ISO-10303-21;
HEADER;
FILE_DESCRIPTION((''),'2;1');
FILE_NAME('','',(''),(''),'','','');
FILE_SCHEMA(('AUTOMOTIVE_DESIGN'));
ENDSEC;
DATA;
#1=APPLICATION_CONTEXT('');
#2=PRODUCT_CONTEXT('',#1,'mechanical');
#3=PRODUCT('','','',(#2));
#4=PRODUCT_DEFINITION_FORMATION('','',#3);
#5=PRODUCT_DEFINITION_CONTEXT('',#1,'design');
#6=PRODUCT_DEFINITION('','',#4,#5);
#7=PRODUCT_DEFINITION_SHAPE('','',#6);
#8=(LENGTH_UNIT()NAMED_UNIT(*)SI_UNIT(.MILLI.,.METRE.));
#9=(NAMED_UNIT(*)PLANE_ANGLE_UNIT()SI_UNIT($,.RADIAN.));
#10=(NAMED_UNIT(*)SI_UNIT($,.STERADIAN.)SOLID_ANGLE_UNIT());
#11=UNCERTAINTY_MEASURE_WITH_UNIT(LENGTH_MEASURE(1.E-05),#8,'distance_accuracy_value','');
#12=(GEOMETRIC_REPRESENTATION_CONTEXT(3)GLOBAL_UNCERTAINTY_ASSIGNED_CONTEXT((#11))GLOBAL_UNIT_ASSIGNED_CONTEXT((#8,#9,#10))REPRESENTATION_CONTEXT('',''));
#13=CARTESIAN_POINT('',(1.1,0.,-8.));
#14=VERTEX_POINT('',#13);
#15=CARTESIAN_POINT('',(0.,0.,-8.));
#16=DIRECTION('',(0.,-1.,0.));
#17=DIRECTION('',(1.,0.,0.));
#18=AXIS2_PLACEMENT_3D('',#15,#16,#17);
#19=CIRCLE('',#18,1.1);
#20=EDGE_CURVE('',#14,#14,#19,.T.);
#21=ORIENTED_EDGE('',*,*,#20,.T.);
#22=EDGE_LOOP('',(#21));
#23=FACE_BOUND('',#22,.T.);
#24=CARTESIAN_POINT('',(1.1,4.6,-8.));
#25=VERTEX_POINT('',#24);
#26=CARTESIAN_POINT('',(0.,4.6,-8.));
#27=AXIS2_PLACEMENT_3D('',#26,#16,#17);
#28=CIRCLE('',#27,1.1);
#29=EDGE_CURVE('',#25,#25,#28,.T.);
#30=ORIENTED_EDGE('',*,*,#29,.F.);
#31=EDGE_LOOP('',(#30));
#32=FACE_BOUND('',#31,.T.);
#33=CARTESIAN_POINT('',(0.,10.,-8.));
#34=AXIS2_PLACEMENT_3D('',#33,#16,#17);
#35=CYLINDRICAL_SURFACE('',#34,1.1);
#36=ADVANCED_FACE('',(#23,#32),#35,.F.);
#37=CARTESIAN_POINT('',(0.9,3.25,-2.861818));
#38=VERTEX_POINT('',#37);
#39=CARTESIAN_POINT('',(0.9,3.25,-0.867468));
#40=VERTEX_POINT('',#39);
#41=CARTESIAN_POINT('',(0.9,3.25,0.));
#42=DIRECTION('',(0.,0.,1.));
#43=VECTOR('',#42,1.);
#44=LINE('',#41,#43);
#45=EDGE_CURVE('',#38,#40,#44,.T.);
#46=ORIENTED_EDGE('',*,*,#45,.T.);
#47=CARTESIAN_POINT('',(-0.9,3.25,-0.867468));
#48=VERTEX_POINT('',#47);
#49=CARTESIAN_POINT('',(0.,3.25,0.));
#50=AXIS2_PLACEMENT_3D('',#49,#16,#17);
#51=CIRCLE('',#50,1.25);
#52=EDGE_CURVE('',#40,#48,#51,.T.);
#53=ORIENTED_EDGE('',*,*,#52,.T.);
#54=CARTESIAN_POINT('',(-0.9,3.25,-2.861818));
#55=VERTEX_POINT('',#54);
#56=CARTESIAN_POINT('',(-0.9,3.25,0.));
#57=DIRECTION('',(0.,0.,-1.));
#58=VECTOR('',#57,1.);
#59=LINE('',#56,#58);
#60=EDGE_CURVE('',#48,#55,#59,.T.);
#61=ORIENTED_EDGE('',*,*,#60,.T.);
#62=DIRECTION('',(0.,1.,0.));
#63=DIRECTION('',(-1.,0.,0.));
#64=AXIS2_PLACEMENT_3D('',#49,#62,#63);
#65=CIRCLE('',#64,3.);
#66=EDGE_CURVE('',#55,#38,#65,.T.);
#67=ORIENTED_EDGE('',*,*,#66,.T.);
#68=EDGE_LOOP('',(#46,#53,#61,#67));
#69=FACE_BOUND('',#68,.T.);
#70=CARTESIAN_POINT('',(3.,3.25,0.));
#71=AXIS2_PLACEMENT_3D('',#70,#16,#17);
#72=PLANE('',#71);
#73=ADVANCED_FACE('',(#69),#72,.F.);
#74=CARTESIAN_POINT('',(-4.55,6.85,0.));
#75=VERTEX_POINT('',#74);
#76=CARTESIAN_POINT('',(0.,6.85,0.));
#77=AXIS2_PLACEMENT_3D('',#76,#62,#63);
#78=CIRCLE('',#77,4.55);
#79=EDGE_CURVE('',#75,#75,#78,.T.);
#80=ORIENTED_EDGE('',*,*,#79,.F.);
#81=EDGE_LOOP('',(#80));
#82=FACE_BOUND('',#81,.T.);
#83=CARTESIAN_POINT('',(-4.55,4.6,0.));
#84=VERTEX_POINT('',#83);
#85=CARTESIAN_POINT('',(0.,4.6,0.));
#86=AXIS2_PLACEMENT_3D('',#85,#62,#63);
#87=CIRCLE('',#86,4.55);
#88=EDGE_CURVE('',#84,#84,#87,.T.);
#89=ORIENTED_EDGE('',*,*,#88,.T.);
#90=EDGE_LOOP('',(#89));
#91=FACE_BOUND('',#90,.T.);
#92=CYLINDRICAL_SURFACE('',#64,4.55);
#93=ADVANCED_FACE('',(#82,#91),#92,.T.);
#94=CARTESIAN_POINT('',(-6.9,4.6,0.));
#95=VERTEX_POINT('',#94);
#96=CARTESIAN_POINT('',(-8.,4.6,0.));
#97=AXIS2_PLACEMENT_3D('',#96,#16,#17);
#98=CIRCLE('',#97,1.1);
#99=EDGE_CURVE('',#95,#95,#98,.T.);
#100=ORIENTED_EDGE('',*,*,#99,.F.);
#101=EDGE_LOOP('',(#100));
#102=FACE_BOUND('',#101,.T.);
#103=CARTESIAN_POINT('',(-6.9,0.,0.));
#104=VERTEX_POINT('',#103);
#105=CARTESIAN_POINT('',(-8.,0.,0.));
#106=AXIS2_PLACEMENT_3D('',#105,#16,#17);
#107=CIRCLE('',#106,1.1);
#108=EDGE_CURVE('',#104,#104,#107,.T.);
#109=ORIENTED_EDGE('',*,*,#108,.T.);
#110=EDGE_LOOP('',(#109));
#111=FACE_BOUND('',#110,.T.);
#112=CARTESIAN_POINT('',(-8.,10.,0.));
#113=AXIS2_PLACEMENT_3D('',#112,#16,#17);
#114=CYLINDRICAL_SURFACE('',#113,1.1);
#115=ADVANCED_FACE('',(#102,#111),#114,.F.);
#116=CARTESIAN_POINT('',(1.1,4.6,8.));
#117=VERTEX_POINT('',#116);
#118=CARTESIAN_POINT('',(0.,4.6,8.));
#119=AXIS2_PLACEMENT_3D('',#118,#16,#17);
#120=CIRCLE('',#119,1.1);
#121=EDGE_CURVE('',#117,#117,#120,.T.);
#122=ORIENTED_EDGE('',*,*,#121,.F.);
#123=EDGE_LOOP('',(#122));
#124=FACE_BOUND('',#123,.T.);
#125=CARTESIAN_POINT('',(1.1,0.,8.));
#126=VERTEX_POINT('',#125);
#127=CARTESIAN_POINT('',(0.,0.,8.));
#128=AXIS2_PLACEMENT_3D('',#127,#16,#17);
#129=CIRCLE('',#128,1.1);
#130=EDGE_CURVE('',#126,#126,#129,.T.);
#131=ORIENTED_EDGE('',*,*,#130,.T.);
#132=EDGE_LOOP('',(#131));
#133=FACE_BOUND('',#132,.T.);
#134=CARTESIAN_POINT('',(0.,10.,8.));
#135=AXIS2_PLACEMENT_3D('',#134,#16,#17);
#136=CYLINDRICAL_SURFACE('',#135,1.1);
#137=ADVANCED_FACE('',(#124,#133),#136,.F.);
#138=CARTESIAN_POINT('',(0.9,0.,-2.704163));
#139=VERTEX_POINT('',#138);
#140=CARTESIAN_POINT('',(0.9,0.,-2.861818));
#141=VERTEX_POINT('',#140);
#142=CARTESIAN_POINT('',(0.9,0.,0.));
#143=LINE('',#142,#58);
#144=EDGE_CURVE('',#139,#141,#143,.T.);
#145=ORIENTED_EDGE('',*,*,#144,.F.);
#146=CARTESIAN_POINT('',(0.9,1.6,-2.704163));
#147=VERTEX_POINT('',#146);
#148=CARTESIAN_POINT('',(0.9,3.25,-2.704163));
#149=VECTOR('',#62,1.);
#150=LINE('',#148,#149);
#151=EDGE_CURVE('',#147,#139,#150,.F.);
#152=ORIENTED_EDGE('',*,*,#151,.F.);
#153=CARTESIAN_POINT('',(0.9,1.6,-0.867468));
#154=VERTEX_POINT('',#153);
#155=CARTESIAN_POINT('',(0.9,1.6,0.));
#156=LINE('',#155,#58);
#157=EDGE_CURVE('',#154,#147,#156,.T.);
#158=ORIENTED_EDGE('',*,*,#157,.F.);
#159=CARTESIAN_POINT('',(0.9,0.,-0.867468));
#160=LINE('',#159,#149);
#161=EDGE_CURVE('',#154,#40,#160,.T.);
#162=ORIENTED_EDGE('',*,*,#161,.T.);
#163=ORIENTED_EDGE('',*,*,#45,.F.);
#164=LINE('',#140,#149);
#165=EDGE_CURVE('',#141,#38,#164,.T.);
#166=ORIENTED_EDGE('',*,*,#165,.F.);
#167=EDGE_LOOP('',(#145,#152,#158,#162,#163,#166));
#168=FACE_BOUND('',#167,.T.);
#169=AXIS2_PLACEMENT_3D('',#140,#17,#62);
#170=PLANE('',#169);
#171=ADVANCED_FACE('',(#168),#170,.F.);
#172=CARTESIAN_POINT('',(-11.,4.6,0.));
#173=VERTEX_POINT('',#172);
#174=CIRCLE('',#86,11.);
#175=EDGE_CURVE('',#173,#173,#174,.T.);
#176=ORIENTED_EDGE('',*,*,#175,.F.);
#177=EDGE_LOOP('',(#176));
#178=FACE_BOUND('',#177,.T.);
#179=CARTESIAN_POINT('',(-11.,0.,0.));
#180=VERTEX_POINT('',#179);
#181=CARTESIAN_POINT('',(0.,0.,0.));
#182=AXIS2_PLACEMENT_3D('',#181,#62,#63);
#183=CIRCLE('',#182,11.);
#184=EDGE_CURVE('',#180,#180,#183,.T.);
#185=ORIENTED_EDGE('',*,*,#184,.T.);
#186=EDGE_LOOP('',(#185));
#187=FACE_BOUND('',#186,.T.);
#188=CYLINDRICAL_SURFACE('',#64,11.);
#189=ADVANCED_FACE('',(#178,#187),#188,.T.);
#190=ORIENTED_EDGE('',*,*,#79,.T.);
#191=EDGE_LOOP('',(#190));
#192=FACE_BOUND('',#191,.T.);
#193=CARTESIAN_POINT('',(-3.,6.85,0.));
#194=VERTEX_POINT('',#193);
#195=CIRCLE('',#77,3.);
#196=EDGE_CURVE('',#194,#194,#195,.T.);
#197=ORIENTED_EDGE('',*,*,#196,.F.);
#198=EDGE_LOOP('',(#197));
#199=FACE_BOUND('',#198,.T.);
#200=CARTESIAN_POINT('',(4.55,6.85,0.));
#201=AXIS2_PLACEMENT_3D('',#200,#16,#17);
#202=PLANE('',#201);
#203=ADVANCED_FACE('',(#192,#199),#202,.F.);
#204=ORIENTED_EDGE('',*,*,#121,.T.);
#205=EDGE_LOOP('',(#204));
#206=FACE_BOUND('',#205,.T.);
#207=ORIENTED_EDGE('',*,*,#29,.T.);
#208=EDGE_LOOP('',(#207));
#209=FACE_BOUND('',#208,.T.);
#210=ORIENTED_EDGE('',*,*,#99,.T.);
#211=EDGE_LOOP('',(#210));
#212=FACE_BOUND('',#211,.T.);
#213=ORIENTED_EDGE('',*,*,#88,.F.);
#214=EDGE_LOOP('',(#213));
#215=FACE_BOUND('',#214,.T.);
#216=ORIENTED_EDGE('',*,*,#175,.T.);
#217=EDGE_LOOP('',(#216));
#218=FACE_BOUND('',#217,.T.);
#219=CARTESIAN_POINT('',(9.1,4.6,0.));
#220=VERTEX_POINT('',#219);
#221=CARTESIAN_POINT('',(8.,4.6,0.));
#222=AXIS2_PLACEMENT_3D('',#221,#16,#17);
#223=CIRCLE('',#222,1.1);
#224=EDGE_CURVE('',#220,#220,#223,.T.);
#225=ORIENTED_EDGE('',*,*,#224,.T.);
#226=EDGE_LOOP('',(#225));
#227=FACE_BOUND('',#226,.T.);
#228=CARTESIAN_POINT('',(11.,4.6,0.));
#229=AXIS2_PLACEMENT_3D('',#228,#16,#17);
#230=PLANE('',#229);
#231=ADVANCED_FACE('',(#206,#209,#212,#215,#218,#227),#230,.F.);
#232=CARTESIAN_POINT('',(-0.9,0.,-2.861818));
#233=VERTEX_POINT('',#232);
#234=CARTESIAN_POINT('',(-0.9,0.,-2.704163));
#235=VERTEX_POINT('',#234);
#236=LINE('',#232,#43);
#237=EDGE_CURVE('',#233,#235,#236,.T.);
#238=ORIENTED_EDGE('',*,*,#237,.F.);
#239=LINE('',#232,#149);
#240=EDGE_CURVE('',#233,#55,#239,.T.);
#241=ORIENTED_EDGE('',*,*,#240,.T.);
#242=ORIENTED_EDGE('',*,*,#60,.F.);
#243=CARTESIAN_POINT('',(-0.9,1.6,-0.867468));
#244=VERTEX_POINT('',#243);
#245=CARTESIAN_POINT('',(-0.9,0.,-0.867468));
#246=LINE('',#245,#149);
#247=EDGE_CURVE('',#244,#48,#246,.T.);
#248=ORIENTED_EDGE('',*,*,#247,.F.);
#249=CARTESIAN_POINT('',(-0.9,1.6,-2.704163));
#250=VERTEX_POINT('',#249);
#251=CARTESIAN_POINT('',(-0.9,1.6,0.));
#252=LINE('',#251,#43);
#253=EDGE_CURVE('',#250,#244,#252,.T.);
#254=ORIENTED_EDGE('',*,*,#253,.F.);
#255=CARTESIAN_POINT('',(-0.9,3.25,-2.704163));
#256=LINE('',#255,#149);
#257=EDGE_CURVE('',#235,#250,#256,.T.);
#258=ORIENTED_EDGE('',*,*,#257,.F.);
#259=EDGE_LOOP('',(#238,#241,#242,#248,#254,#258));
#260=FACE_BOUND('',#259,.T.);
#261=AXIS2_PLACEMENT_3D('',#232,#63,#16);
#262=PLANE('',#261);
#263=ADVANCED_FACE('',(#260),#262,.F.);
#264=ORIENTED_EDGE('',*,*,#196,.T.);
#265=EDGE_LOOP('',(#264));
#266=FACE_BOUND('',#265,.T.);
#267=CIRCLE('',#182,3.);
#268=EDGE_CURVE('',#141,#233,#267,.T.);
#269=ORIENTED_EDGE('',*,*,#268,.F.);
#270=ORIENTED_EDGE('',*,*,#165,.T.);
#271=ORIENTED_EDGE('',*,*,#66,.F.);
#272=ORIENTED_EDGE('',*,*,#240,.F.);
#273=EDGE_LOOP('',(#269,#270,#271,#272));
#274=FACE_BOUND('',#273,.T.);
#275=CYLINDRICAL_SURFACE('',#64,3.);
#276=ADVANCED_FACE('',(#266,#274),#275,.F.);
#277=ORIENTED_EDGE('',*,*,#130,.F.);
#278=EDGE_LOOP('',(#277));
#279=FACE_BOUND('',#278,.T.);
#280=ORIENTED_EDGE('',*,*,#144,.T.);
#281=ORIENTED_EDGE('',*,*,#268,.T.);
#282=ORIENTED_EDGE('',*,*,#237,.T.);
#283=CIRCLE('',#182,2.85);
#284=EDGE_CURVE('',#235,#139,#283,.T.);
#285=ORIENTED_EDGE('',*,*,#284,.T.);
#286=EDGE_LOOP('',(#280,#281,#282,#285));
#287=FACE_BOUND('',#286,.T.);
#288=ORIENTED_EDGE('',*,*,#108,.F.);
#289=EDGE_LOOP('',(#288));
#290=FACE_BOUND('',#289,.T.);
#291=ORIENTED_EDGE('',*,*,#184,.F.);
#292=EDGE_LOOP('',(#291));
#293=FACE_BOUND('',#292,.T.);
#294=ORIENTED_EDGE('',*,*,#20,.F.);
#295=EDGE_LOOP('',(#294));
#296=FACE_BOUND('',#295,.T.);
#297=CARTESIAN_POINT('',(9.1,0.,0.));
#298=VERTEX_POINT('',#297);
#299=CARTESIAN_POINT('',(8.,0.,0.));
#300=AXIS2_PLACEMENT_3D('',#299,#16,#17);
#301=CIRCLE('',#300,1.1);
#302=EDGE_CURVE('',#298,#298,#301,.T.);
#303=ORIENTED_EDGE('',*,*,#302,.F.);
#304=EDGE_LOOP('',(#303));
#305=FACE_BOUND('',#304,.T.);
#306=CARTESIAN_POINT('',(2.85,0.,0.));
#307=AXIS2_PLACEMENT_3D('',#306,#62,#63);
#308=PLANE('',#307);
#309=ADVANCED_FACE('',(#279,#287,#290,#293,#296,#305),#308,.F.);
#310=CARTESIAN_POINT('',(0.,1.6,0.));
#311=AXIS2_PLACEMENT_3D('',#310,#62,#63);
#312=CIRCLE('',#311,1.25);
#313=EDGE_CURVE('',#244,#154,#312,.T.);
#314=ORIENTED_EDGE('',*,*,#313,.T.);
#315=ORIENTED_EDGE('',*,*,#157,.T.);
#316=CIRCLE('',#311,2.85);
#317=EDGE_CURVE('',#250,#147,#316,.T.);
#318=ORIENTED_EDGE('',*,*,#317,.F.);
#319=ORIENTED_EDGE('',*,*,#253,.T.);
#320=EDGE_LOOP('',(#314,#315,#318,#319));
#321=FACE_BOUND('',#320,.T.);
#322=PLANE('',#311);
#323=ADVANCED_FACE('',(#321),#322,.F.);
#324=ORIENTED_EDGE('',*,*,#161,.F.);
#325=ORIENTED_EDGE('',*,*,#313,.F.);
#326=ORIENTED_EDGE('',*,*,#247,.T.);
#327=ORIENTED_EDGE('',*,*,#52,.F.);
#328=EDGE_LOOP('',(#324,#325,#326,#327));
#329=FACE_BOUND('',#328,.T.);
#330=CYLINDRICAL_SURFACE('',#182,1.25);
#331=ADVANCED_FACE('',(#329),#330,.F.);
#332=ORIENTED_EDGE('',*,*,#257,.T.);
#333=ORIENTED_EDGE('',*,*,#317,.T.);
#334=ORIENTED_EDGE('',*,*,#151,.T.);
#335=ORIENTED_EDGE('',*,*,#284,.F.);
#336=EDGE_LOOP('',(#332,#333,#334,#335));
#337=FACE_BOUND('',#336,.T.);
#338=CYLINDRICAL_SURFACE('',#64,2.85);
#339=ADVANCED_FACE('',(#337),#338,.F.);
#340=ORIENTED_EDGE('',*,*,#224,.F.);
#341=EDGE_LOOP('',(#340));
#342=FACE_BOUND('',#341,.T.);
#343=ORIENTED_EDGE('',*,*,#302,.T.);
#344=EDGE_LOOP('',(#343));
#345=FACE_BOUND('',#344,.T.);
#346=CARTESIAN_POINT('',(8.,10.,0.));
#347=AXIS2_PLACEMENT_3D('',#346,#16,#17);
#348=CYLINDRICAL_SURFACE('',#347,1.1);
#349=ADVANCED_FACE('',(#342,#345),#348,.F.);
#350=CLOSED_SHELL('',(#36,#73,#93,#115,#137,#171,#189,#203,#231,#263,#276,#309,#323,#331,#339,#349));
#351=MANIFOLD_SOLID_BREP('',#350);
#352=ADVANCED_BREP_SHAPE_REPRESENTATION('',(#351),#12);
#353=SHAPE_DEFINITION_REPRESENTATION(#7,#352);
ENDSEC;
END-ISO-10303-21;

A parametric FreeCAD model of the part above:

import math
import FreeCAD as App
import Part
import Sketcher

V = App.Vector
Q = App.Units.Quantity

doc = App.newDocument("Part")
body = doc.addObject("PartDesign::Body", "Body")

# Sketch on XY plane
sketch1 = body.newObject("Sketcher::SketchObject", "Sketch")
sketch1.AttachmentSupport = (doc.getObject("XY_Plane"), [""])
sketch1.MapMode = "FlatFace"
sketch1.addGeometry(Part.LineSegment(V(2.9, 0, 0), V(11, 0, 0)), False)
sketch1.addGeometry(Part.LineSegment(V(11, 0, 0), V(11, 4.6, 0)), False)
sketch1.addGeometry(Part.LineSegment(V(11, 4.6, 0), V(4.5, 4.6, 0)), False)
sketch1.addGeometry(Part.LineSegment(V(4.5, 4.6, 0), V(4.5, 6.8, 0)), False)
sketch1.addGeometry(Part.LineSegment(V(4.5, 6.8, 0), V(3, 6.8, 0)), False)
sketch1.addGeometry(Part.LineSegment(V(3, 6.8, 0), V(3, 3.2, 0)), False)
sketch1.addGeometry(Part.LineSegment(V(3, 3.2, 0), V(0, 3.2, 0)), False)
sketch1.addGeometry(Part.LineSegment(V(0, 3.2, 0), V(0, 1.6, 0)), False)
sketch1.addGeometry(Part.LineSegment(V(0, 1.6, 0), V(2.9, 1.6, 0)), False)
sketch1.addGeometry(Part.LineSegment(V(2.9, 1.6, 0), V(2.9, 0, 0)), False)
sketch1.addConstraint(Sketcher.Constraint("Coincident", 0, 2, 1, 1))
sketch1.addConstraint(Sketcher.Constraint("Coincident", 1, 2, 2, 1))
sketch1.addConstraint(Sketcher.Constraint("Coincident", 2, 2, 3, 1))
sketch1.addConstraint(Sketcher.Constraint("Coincident", 3, 2, 4, 1))
sketch1.addConstraint(Sketcher.Constraint("Coincident", 4, 2, 5, 1))
sketch1.addConstraint(Sketcher.Constraint("Coincident", 5, 2, 6, 1))
sketch1.addConstraint(Sketcher.Constraint("Coincident", 6, 2, 7, 1))
sketch1.addConstraint(Sketcher.Constraint("Coincident", 7, 2, 8, 1))
sketch1.addConstraint(Sketcher.Constraint("Coincident", 8, 2, 9, 1))
sketch1.addConstraint(Sketcher.Constraint("Coincident", 9, 2, 0, 1))
sketch1.addConstraint(Sketcher.Constraint("Horizontal", 0))
sketch1.addConstraint(Sketcher.Constraint("Vertical", 1))
sketch1.addConstraint(Sketcher.Constraint("Horizontal", 2))
sketch1.addConstraint(Sketcher.Constraint("Vertical", 3))
sketch1.addConstraint(Sketcher.Constraint("Horizontal", 4))
sketch1.addConstraint(Sketcher.Constraint("Vertical", 5))
sketch1.addConstraint(Sketcher.Constraint("Horizontal", 6))
sketch1.addConstraint(Sketcher.Constraint("Vertical", 7))
sketch1.addConstraint(Sketcher.Constraint("Horizontal", 8))
sketch1.addConstraint(Sketcher.Constraint("Vertical", 9))
sketch1.addConstraint(Sketcher.Constraint("PointOnObject", 0, 2, -1))
sketch1.addConstraint(Sketcher.Constraint("PointOnObject", 6, 2, -2))
sketch1.addConstraint(Sketcher.Constraint("DistanceX", 6, 2, 6, 1, Q("3 mm")))
sketch1.addConstraint(Sketcher.Constraint("DistanceY", 1, 1, 1, 2, Q("4.6 mm")))
sketch1.addConstraint(Sketcher.Constraint("DistanceY", 5, 2, 5, 1, Q("3.6 mm")))
sketch1.addConstraint(Sketcher.Constraint("DistanceY", 9, 2, 9, 1, Q("1.6 mm")))
sketch1.addConstraint(Sketcher.Constraint("DistanceX", -1, 1, 0, 2, Q("11 mm")))
sketch1.addConstraint(Sketcher.Constraint("DistanceX", 0, 1, 0, 2, Q("8.15 mm")))
sketch1.addConstraint(Sketcher.Constraint("DistanceX", 2, 2, 2, 1, Q("6.45 mm")))
sketch1.addConstraint(Sketcher.Constraint("DistanceY", 3, 1, 3, 2, Q("2.25 mm")))
revolution = body.newObject("PartDesign::Revolution", "Revolution")
revolution.Profile = sketch1
revolution.ReferenceAxis = (sketch1, ["V_Axis"])
revolution.Angle = 360

# Sketch on XZ plane
sketch2 = body.newObject("Sketcher::SketchObject", "Sketch001")
sketch2.AttachmentSupport = (doc.getObject("XZ_Plane"), [""])
sketch2.MapMode = "FlatFace"
sketch2.AttachmentOffset = App.Placement(V(0, 0, -3.25), App.Rotation())
sketch2.addGeometry(Part.LineSegment(V(-0.9, -2.9, 0), V(-0.9, -0.9, 0)), False)
sketch2.addGeometry(Part.ArcOfCircle(Part.Circle(V(0, 0, 0), V(0, 0, 1), 1.2), math.radians(-44), math.radians(224)), False)
sketch2.addGeometry(Part.LineSegment(V(0.9, -0.9, 0), V(0.9, -2.9, 0)), False)
sketch2.addGeometry(Part.ArcOfCircle(Part.Circle(V(0, 0, 0), V(0, 0, 1), 3), math.radians(-107), math.radians(-73)), False)
sketch2.addConstraint(Sketcher.Constraint("Coincident", 0, 2, 1, 2))
sketch2.addConstraint(Sketcher.Constraint("Coincident", 1, 1, 2, 1))
sketch2.addConstraint(Sketcher.Constraint("Coincident", 2, 2, 3, 2))
sketch2.addConstraint(Sketcher.Constraint("Coincident", 3, 1, 0, 1))
sketch2.addConstraint(Sketcher.Constraint("Vertical", 0))
sketch2.addConstraint(Sketcher.Constraint("Vertical", 2))
sketch2.addConstraint(Sketcher.Constraint("Coincident", 1, 3, -1, 1))
sketch2.addConstraint(Sketcher.Constraint("Coincident", 3, 3, -1, 1))
sketch2.addConstraint(Sketcher.Constraint("Horizontal", 0, 2, 1, 1))
sketch2.addConstraint(Sketcher.Constraint("Radius", 3, Q("3 mm")))
sketch2.addConstraint(Sketcher.Constraint("Radius", 1, Q("1.25 mm")))
sketch2.addConstraint(Sketcher.Constraint("DistanceX", 0, 2, -1, 1, Q("0.9 mm")))
pocket1 = body.newObject("PartDesign::Pocket", "Pocket")
pocket1.Profile = sketch2
pocket1.Type = "ThroughAll"
pocket1.Midplane = True

# Sketch on XZ plane
sketch3 = body.newObject("Sketcher::SketchObject", "Sketch002")
sketch3.AttachmentSupport = (doc.getObject("XZ_Plane"), [""])
sketch3.MapMode = "FlatFace"
sketch3.addGeometry(Part.Circle(V(0, 8, 0), V(0, 0, 1), 1.1), False)
sketch3.addGeometry(Part.Circle(V(8, 0, 0), V(0, 0, 1), 1.1), False)
sketch3.addGeometry(Part.Circle(V(0, -8, 0), V(0, 0, 1), 1.1), False)
sketch3.addGeometry(Part.Circle(V(-8, 0, 0), V(0, 0, 1), 1.1), False)
sketch3.addConstraint(Sketcher.Constraint("Equal", 0, 1))
sketch3.addConstraint(Sketcher.Constraint("Equal", 1, 2))
sketch3.addConstraint(Sketcher.Constraint("Equal", 2, 3))
sketch3.addConstraint(Sketcher.Constraint("Symmetric", 0, 3, 2, 3, -1, 1))
sketch3.addConstraint(Sketcher.Constraint("Symmetric", 1, 3, 3, 3, -1, 1))
sketch3.addConstraint(Sketcher.Constraint("PointOnObject", 0, 3, -2))
sketch3.addConstraint(Sketcher.Constraint("PointOnObject", 1, 3, -1))
sketch3.addConstraint(Sketcher.Constraint("Diameter", 0, Q("2.2 mm")))
sketch3.addConstraint(Sketcher.Constraint("DistanceY", -1, 1, 0, 3, Q("8 mm")))
sketch3.addConstraint(Sketcher.Constraint("DistanceX", -1, 1, 1, 3, Q("8 mm")))
pocket2 = body.newObject("PartDesign::Pocket", "Pocket001")
pocket2.Profile = sketch3
pocket2.Length = 10

doc.recompute()
